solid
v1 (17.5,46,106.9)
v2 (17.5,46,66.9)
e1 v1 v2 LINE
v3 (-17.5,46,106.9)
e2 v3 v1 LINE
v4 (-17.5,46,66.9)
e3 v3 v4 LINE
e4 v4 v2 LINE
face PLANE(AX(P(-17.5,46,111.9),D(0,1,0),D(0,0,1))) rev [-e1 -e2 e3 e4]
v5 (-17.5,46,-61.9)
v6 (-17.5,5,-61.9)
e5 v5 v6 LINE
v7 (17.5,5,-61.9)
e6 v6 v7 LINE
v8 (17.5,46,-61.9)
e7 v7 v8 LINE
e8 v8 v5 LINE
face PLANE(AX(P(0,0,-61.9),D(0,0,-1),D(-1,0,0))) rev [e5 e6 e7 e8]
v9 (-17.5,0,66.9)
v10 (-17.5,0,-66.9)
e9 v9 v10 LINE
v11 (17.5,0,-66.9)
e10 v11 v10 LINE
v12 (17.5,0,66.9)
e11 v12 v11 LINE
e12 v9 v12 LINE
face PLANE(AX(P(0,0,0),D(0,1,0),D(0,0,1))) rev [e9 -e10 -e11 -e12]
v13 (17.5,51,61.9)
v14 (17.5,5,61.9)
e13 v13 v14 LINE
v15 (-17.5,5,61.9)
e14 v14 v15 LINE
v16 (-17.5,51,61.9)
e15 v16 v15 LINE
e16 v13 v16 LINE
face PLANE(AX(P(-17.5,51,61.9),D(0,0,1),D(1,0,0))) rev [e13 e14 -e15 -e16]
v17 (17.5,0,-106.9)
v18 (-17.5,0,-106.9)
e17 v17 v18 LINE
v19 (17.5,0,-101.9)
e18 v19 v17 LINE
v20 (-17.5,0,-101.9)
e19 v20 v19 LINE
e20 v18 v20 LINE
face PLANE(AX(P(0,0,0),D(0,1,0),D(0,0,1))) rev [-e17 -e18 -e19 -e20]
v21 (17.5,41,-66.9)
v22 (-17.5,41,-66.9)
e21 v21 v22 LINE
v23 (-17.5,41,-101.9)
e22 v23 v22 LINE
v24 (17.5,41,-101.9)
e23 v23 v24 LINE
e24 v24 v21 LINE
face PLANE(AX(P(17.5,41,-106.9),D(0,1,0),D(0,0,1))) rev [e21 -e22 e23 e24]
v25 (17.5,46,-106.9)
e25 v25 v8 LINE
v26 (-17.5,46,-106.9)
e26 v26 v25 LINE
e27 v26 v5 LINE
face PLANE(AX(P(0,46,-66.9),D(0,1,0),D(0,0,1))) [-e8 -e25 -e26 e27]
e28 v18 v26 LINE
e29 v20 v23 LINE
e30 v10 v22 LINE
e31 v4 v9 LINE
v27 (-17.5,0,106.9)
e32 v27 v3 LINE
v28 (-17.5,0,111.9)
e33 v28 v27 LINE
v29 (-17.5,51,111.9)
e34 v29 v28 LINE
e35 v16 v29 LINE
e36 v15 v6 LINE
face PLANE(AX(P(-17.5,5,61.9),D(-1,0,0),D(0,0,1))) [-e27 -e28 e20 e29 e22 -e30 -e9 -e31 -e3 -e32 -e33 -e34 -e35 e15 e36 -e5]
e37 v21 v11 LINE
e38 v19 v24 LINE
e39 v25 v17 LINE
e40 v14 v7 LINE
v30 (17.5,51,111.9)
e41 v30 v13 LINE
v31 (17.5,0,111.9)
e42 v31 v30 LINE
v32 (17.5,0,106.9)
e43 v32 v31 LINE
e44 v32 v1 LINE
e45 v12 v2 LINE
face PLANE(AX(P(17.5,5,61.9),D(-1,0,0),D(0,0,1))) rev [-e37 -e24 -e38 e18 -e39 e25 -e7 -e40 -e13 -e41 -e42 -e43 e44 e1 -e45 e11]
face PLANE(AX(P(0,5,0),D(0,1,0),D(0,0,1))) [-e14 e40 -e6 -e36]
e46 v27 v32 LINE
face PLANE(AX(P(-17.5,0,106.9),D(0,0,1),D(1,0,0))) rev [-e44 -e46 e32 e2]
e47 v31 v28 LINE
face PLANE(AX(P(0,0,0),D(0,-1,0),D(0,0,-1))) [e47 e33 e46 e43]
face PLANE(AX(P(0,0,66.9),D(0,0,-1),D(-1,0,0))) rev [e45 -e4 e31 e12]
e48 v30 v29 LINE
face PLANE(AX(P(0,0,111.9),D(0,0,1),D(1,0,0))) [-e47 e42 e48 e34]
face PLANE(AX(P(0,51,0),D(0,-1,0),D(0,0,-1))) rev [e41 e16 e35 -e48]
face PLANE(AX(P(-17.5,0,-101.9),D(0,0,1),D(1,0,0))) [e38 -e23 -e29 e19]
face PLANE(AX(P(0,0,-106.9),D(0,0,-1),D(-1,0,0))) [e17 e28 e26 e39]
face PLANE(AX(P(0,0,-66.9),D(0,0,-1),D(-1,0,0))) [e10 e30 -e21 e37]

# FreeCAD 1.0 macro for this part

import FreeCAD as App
import Part
import Sketcher

V = App.Vector

doc = App.newDocument("Part")
body = doc.addObject("PartDesign::Body", "Body")

# Sketch on XZ plane
sketch1 = doc.addObject("Sketcher::SketchObject", "Sketch")
body.addObject(sketch1)
sketch1.AttachmentSupport = (doc.XZ_Plane, [""])
sketch1.MapMode = "FlatFace"
sketch1.addGeometry([
    Part.LineSegment(V(-18, -62, 0), V(-18, 62, 0)),
    Part.LineSegment(V(-18, 62, 0), V(18, 62, 0)),
    Part.LineSegment(V(18, 62, 0), V(18, -62, 0)),
    Part.LineSegment(V(18, -62, 0), V(-18, -62, 0)),
], False)
sketch1.addConstraint([
    Sketcher.Constraint("Coincident", 0, 2, 1, 1),
    Sketcher.Constraint("Coincident", 1, 2, 2, 1),
    Sketcher.Constraint("Coincident", 2, 2, 3, 1),
    Sketcher.Constraint("Coincident", 3, 2, 0, 1),
    Sketcher.Constraint("Vertical", 0),
    Sketcher.Constraint("Horizontal", 1),
    Sketcher.Constraint("Vertical", 2),
    Sketcher.Constraint("Horizontal", 3),
    Sketcher.Constraint("Symmetric", 0, 2, 2, 2, -1, 1),
    Sketcher.Constraint("DistanceX", 1, 1, 1, 2, 35.0),
    Sketcher.Constraint("DistanceY", 0, 1, 0, 2, 123.8),
])
pad1 = doc.addObject("PartDesign::Pad", "Pad")
body.addObject(pad1)
pad1.Profile = sketch1
pad1.Length = 5
pad1.Reversed = True
body2 = doc.addObject("PartDesign::Body", "Body001")

# Sketch on XY plane
sketch2 = doc.addObject("Sketcher::SketchObject", "Sketch001")
body2.addObject(sketch2)
sketch2.AttachmentSupport = (doc.getObject("XY_Plane001"), [""])
sketch2.MapMode = "FlatFace"
sketch2.AttachmentOffset = App.Placement(V(0, 0, -61.9), App.Rotation())
sketch2.addGeometry([
    Part.LineSegment(V(18, 46, 0), V(18, 5, 0)),
    Part.LineSegment(V(18, 5, 0), V(-18, 5, 0)),
    Part.LineSegment(V(-18, 5, 0), V(-18, 46, 0)),
    Part.LineSegment(V(-18, 46, 0), V(18, 46, 0)),
], False)
sketch2.addConstraint([
    Sketcher.Constraint("Coincident", 0, 2, 1, 1),
    Sketcher.Constraint("Coincident", 1, 2, 2, 1),
    Sketcher.Constraint("Coincident", 2, 2, 3, 1),
    Sketcher.Constraint("Coincident", 3, 2, 0, 1),
    Sketcher.Constraint("Vertical", 0),
    Sketcher.Constraint("Horizontal", 1),
    Sketcher.Constraint("Vertical", 2),
    Sketcher.Constraint("Horizontal", 3),
    Sketcher.Constraint("DistanceX", 1, 2, 1, 1, 35.0),
    Sketcher.Constraint("DistanceY", 0, 2, 0, 1, 41.0),
    Sketcher.Constraint("DistanceY", -1, 1, 0, 2, 5.0),
    Sketcher.Constraint("DistanceX", -1, 1, 0, 2, 17.5),
])
pad2 = doc.addObject("PartDesign::Pad", "Pad001")
body2.addObject(pad2)
pad2.Profile = sketch2
pad2.Length = 5
pad2.Reversed = True
body.AllowCompound = True
doc.recompute()

boolean = doc.addObject("PartDesign::Boolean", "Boolean")
body.addObject(boolean)
boolean.Type = "Fuse"
boolean.addObjects([body2])

# Sketch on XY plane
sketch3 = doc.addObject("Sketcher::SketchObject", "Sketch002")
body.addObject(sketch3)
sketch3.AttachmentSupport = (doc.XY_Plane, [""])
sketch3.MapMode = "FlatFace"
sketch3.AttachmentOffset = App.Placement(V(0, 0, -61.9), App.Rotation())
sketch3.addGeometry([
    Part.LineSegment(V(18, 5, 0), V(18, 0, 0)),
    Part.LineSegment(V(18, 0, 0), V(-18, 0, 0)),
    Part.LineSegment(V(-18, 0, 0), V(-18, 5, 0)),
    Part.LineSegment(V(-18, 5, 0), V(18, 5, 0)),
], False)
sketch3.addConstraint([
    Sketcher.Constraint("Coincident", 0, 2, 1, 1),
    Sketcher.Constraint("Coincident", 1, 2, 2, 1),
    Sketcher.Constraint("Coincident", 2, 2, 3, 1),
    Sketcher.Constraint("Coincident", 3, 2, 0, 1),
    Sketcher.Constraint("Vertical", 0),
    Sketcher.Constraint("Horizontal", 1),
    Sketcher.Constraint("Vertical", 2),
    Sketcher.Constraint("Horizontal", 3),
    Sketcher.Constraint("Symmetric", 0, 2, 1, 2, -1, 1),
    Sketcher.Constraint("DistanceX", 1, 2, 1, 1, 35.0),
    Sketcher.Constraint("DistanceY", 0, 2, 0, 1, 5.0),
])
pad3 = doc.addObject("PartDesign::Pad", "Pad002")
body.addObject(pad3)
pad3.Profile = sketch3
pad3.Length = 5
pad3.Reversed = True

# Sketch on XY plane
sketch4 = doc.addObject("Sketcher::SketchObject", "Sketch003")
body.addObject(sketch4)
sketch4.AttachmentSupport = (doc.XY_Plane, [""])
sketch4.MapMode = "FlatFace"
sketch4.AttachmentOffset = App.Placement(V(0, 0, -66.9), App.Rotation())
sketch4.addGeometry([
    Part.LineSegment(V(18, 46, 0), V(18, 41, 0)),
    Part.LineSegment(V(18, 41, 0), V(-18, 41, 0)),
    Part.LineSegment(V(-18, 41, 0), V(-18, 46, 0)),
    Part.LineSegment(V(-18, 46, 0), V(18, 46, 0)),
], False)
sketch4.addConstraint([
    Sketcher.Constraint("Coincident", 0, 2, 1, 1),
    Sketcher.Constraint("Coincident", 1, 2, 2, 1),
    Sketcher.Constraint("Coincident", 2, 2, 3, 1),
    Sketcher.Constraint("Coincident", 3, 2, 0, 1),
    Sketcher.Constraint("Vertical", 0),
    Sketcher.Constraint("Horizontal", 1),
    Sketcher.Constraint("Vertical", 2),
    Sketcher.Constraint("Horizontal", 3),
    Sketcher.Constraint("DistanceX", 1, 2, 1, 1, 35.0),
    Sketcher.Constraint("DistanceY", 0, 2, 0, 1, 5.0),
    Sketcher.Constraint("DistanceY", -1, 1, 0, 2, 41.0),
    Sketcher.Constraint("DistanceX", -1, 1, 0, 2, 17.5),
])
pad4 = doc.addObject("PartDesign::Pad", "Pad003")
body.addObject(pad4)
pad4.Profile = sketch4
pad4.Length = 40
pad4.Reversed = True

# Sketch on XZ plane
sketch5 = doc.addObject("Sketcher::SketchObject", "Sketch004")
body.addObject(sketch5)
sketch5.AttachmentSupport = (doc.XZ_Plane, [""])
sketch5.MapMode = "FlatFace"
sketch5.AttachmentOffset = App.Placement(V(0, 0, -41), App.Rotation())
sketch5.addGeometry([
    Part.LineSegment(V(-18, -102, 0), V(-18, -107, 0)),
    Part.LineSegment(V(-18, -107, 0), V(18, -107, 0)),
    Part.LineSegment(V(18, -107, 0), V(18, -102, 0)),
    Part.LineSegment(V(18, -102, 0), V(-18, -102, 0)),
], False)
sketch5.addConstraint([
    Sketcher.Constraint("Coincident", 0, 2, 1, 1),
    Sketcher.Constraint("Coincident", 1, 2, 2, 1),
    Sketcher.Constraint("Coincident", 2, 2, 3, 1),
    Sketcher.Constraint("Coincident", 3, 2, 0, 1),
    Sketcher.Constraint("Vertical", 0),
    Sketcher.Constraint("Horizontal", 1),
    Sketcher.Constraint("Vertical", 2),
    Sketcher.Constraint("Horizontal", 3),
    Sketcher.Constraint("DistanceX", 1, 1, 1, 2, 35.0),
    Sketcher.Constraint("DistanceY", 0, 2, 0, 1, 5.0),
    Sketcher.Constraint("DistanceX", 0, 2, -1, 1, 17.5),
    Sketcher.Constraint("DistanceY", 0, 2, -1, 1, 106.9),
])
pad5 = doc.addObject("PartDesign::Pad", "Pad004")
body.addObject(pad5)
pad5.Profile = sketch5
pad5.Length = 41

# Sketch on XY plane
sketch6 = doc.addObject("Sketcher::SketchObject", "Sketch005")
body.addObject(sketch6)
sketch6.AttachmentSupport = (doc.XY_Plane, [""])
sketch6.MapMode = "FlatFace"
sketch6.AttachmentOffset = App.Placement(V(0, 0, 61.9), App.Rotation())
sketch6.addGeometry([
    Part.LineSegment(V(-18, 5, 0), V(-18, 0, 0)),
    Part.LineSegment(V(-18, 0, 0), V(18, 0, 0)),
    Part.LineSegment(V(18, 0, 0), V(18, 5, 0)),
    Part.LineSegment(V(18, 5, 0), V(-18, 5, 0)),
], False)
sketch6.addConstraint([
    Sketcher.Constraint("Coincident", 0, 2, 1, 1),
    Sketcher.Constraint("Coincident", 1, 2, 2, 1),
    Sketcher.Constraint("Coincident", 2, 2, 3, 1),
    Sketcher.Constraint("Coincident", 3, 2, 0, 1),
    Sketcher.Constraint("Vertical", 0),
    Sketcher.Constraint("Horizontal", 1),
    Sketcher.Constraint("Vertical", 2),
    Sketcher.Constraint("Horizontal", 3),
    Sketcher.Constraint("Symmetric", 0, 2, 1, 2, -1, 1),
    Sketcher.Constraint("DistanceX", 1, 1, 1, 2, 35.0),
    Sketcher.Constraint("DistanceY", 0, 2, 0, 1, 5.0),
])
pad6 = doc.addObject("PartDesign::Pad", "Pad005")
body.addObject(pad6)
pad6.Profile = sketch6
pad6.Length = 5

# Sketch on XZ plane
sketch7 = doc.addObject("Sketcher::SketchObject", "Sketch006")
body.addObject(sketch7)
sketch7.AttachmentSupport = (doc.XZ_Plane, [""])
sketch7.MapMode = "FlatFace"
sketch7.AttachmentOffset = App.Placement(V(0, 0, -5), App.Rotation())
sketch7.addGeometry([
    Part.LineSegment(V(-18, 62, 0), V(-18, 67, 0)),
    Part.LineSegment(V(-18, 67, 0), V(18, 67, 0)),
    Part.LineSegment(V(18, 67, 0), V(18, 62, 0)),
    Part.LineSegment(V(18, 62, 0), V(-18, 62, 0)),
], False)
sketch7.addConstraint([
    Sketcher.Constraint("Coincident", 0, 2, 1, 1),
    Sketcher.Constraint("Coincident", 1, 2, 2, 1),
    Sketcher.Constraint("Coincident", 2, 2, 3, 1),
    Sketcher.Constraint("Coincident", 3, 2, 0, 1),
    Sketcher.Constraint("Vertical", 0),
    Sketcher.Constraint("Horizontal", 1),
    Sketcher.Constraint("Vertical", 2),
    Sketcher.Constraint("Horizontal", 3),
    Sketcher.Constraint("DistanceX", 1, 1, 1, 2, 35.0),
    Sketcher.Constraint("DistanceY", 0, 1, 0, 2, 5.0),
    Sketcher.Constraint("DistanceX", 0, 2, -1, 1, 17.5),
    Sketcher.Constraint("DistanceY", -1, 1, 0, 2, 66.9),
])
pad7 = doc.addObject("PartDesign::Pad", "Pad006")
body.addObject(pad7)
pad7.Profile = sketch7
pad7.Length = 46
pad7.Reversed = True

# Sketch on XY plane
sketch8 = doc.addObject("Sketcher::SketchObject", "Sketch007")
body.addObject(sketch8)
sketch8.AttachmentSupport = (doc.XY_Plane, [""])
sketch8.MapMode = "FlatFace"
sketch8.AttachmentOffset = App.Placement(V(0, 0, 66.9), App.Rotation())
sketch8.addGeometry([
    Part.LineSegment(V(-18, 51, 0), V(-18, 46, 0)),
    Part.LineSegment(V(-18, 46, 0), V(18, 46, 0)),
    Part.LineSegment(V(18, 46, 0), V(18, 51, 0)),
    Part.LineSegment(V(18, 51, 0), V(-18, 51, 0)),
], False)
sketch8.addConstraint([
    Sketcher.Constraint("Coincident", 0, 2, 1, 1),
    Sketcher.Constraint("Coincident", 1, 2, 2, 1),
    Sketcher.Constraint("Coincident", 2, 2, 3, 1),
    Sketcher.Constraint("Coincident", 3, 2, 0, 1),
    Sketcher.Constraint("Vertical", 0),
    Sketcher.Constraint("Horizontal", 1),
    Sketcher.Constraint("Vertical", 2),
    Sketcher.Constraint("Horizontal", 3),
    Sketcher.Constraint("DistanceX", 1, 1, 1, 2, 35.0),
    Sketcher.Constraint("DistanceY", 0, 2, 0, 1, 5.0),
    Sketcher.Constraint("DistanceY", -1, 1, 0, 2, 46.0),
    Sketcher.Constraint("DistanceX", 0, 2, -1, 1, 17.5),
])
pad8 = doc.addObject("PartDesign::Pad", "Pad007")
body.addObject(pad8)
pad8.Profile = sketch8
pad8.Length = 45

# Sketch on XZ plane
sketch9 = doc.addObject("Sketcher::SketchObject", "Sketch008")
body.addObject(sketch9)
sketch9.AttachmentSupport = (doc.XZ_Plane, [""])
sketch9.MapMode = "FlatFace"
sketch9.AttachmentOffset = App.Placement(V(0, 0, -46), App.Rotation())
sketch9.addGeometry([
    Part.LineSegment(V(-18, 112, 0), V(-18, 107, 0)),
    Part.LineSegment(V(-18, 107, 0), V(18, 107, 0)),
    Part.LineSegment(V(18, 107, 0), V(18, 112, 0)),
    Part.LineSegment(V(18, 112, 0), V(-18, 112, 0)),
], False)
sketch9.addConstraint([
    Sketcher.Constraint("Coincident", 0, 2, 1, 1),
    Sketcher.Constraint("Coincident", 1, 2, 2, 1),
    Sketcher.Constraint("Coincident", 2, 2, 3, 1),
    Sketcher.Constraint("Coincident", 3, 2, 0, 1),
    Sketcher.Constraint("Vertical", 0),
    Sketcher.Constraint("Horizontal", 1),
    Sketcher.Constraint("Vertical", 2),
    Sketcher.Constraint("Horizontal", 3),
    Sketcher.Constraint("DistanceX", 1, 1, 1, 2, 35.0),
    Sketcher.Constraint("DistanceY", 0, 2, 0, 1, 5.0),
    Sketcher.Constraint("DistanceX", 0, 2, -1, 1, 17.5),
    Sketcher.Constraint("DistanceY", -1, 1, 0, 2, 106.9),
])
pad9 = doc.addObject("PartDesign::Pad", "Pad008")
body.addObject(pad9)
pad9.Profile = sketch9
pad9.Length = 46

doc.recompute()
